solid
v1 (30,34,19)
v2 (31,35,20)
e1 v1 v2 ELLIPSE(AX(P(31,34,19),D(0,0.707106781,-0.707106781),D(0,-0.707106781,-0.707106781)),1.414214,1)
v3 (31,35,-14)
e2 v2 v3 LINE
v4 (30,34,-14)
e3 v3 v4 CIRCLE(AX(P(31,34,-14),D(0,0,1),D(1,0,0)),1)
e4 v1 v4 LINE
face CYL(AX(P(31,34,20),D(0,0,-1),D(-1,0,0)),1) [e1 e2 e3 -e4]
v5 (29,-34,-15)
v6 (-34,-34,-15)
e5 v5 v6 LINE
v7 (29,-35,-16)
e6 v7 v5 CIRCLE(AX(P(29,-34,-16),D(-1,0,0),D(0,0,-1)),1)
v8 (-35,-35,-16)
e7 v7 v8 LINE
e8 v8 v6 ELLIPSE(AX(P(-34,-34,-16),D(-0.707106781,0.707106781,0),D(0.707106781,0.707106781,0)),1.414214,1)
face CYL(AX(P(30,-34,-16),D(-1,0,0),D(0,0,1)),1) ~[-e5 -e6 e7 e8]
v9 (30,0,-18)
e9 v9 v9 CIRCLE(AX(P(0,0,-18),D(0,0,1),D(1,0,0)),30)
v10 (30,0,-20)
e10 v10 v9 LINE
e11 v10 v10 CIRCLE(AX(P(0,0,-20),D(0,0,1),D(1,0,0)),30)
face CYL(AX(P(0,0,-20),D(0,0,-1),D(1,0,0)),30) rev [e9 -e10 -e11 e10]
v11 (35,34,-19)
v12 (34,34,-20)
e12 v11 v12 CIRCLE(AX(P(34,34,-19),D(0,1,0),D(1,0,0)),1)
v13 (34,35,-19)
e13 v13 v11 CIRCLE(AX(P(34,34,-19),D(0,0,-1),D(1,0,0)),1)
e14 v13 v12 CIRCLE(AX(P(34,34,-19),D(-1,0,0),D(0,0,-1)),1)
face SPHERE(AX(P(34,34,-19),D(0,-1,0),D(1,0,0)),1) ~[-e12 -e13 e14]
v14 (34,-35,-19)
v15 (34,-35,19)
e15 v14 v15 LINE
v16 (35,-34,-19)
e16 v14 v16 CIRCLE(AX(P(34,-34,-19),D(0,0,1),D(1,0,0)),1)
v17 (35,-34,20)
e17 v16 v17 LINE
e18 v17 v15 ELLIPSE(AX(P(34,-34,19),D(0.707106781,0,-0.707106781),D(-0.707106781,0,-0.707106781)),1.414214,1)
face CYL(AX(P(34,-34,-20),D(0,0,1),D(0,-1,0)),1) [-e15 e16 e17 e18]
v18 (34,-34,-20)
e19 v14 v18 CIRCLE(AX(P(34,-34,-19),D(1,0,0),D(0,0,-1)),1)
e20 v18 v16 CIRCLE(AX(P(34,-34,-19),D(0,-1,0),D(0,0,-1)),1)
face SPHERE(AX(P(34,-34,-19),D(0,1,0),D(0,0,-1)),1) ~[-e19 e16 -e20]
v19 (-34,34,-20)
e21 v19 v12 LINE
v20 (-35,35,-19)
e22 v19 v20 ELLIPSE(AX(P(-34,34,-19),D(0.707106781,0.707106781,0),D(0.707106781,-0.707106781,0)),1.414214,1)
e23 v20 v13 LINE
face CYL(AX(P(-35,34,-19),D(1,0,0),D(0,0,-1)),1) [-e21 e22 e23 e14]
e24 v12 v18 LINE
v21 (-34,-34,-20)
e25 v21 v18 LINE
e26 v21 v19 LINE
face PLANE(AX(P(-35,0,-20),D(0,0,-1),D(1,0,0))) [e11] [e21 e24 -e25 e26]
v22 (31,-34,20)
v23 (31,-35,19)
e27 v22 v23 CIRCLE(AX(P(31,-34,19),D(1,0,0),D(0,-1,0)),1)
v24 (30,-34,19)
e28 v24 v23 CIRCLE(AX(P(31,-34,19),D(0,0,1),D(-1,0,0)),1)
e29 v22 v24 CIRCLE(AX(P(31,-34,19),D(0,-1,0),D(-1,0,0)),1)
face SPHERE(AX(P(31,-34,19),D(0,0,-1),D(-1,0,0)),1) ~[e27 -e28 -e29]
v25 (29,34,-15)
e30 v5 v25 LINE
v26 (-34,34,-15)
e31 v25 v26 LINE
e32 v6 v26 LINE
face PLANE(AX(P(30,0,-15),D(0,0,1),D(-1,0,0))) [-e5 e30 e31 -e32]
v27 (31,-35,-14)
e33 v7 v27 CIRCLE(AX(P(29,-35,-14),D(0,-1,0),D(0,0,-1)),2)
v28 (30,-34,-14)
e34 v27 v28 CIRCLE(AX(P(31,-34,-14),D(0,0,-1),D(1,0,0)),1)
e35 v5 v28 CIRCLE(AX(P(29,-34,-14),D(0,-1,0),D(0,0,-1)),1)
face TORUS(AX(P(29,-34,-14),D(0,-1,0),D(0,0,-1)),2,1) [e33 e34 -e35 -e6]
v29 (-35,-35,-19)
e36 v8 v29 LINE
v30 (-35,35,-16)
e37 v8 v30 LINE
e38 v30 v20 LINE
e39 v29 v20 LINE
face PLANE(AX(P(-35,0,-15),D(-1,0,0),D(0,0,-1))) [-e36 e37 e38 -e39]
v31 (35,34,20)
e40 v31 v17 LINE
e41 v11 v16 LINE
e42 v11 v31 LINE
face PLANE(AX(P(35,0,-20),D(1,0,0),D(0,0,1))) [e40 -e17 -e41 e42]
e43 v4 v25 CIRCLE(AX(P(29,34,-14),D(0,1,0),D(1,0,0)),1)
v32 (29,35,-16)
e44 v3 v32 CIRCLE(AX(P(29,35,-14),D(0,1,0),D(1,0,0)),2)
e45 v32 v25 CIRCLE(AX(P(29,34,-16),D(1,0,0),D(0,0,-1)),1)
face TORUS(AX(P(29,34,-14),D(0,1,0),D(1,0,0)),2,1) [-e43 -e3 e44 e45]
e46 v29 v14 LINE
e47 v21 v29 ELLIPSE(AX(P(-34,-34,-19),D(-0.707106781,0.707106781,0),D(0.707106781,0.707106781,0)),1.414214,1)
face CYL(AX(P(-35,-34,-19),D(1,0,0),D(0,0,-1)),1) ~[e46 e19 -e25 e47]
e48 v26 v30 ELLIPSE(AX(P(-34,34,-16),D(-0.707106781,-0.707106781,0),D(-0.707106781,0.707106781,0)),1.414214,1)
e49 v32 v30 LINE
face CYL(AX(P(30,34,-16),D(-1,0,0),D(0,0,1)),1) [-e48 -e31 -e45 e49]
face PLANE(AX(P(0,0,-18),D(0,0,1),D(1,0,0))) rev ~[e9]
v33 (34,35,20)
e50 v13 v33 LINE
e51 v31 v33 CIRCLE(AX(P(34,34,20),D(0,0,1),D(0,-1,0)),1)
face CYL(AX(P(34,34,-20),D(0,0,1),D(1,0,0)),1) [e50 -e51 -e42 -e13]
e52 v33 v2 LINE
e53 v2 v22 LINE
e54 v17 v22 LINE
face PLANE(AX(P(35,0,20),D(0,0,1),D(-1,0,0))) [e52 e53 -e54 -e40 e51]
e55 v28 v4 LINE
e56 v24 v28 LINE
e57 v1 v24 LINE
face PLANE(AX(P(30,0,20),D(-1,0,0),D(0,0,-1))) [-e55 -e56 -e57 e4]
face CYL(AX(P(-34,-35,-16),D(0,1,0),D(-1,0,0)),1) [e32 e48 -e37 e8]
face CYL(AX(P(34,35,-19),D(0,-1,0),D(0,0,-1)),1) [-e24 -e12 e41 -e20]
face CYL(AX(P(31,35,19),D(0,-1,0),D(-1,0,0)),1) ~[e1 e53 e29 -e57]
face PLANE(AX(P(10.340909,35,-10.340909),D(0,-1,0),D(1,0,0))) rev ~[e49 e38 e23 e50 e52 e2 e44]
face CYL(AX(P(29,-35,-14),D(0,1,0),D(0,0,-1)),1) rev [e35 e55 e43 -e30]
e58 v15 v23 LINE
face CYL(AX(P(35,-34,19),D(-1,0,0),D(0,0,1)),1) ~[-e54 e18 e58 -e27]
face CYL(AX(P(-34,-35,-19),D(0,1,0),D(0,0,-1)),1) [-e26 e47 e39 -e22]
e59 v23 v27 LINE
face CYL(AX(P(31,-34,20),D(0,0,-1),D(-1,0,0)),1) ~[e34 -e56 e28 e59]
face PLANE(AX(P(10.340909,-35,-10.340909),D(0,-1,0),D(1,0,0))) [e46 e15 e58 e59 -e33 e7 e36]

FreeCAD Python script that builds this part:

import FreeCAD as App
import Part
import Sketcher


def edges_at(feature, points):
    """Names of the edges that pass closest to the given points."""
    edges = feature.Shape.Edges
    near = lambda p: min(range(len(edges)), key=lambda i: edges[i].distToShape(Part.Vertex(*p))[0])
    return sorted({f"Edge{near(p) + 1}" for p in points})


def add_polygon(sketch, points):
    """Adds a closed chain of lines whose ends are joined by coincident constraints."""
    first, n = sketch.GeometryCount, len(points)
    for a, b in zip(points, points[1:] + points[:1]):
        sketch.addGeometry(Part.LineSegment(App.Vector(*a, 0), App.Vector(*b, 0)), False)
    for i in range(n):
        sketch.addConstraint(Sketcher.Constraint("Coincident", first + i, 2, first + (i + 1) % n, 1))

doc = App.newDocument("Part")
params = doc.addObject("Spreadsheet::Sheet", "Params")
for row, (alias, value) in enumerate([
    ("sketch1_width", "70 mm"),
    ("sketch1_width2", "5 mm"),
    ("sketch1_height", "40 mm"),
    ("pad1_length", "35 mm"),
    ("pad1_length2", "35 mm"),
    ("fillet_radius", "1 mm"),
    ("sketch2_diameter", "60 mm"),
    ("pocket1_length", "2 mm"),
], start=1):
    params.set(f"A{row}", alias)
    params.set(f"B{row}", "=" + value)
    params.setAlias(f"B{row}", alias)

body = doc.addObject("PartDesign::Body", "Body")

sketch1 = body.newObject("Sketcher::SketchObject", "Sketch")
sketch1.AttachmentSupport = (doc.getObject("XZ_Plane"), [""])
sketch1.MapMode = "FlatFace"
add_polygon(sketch1, [(-35, -20), (35, -20), (35, 20), (30, 20), (30, -15), (-35, -15)])
sketch1.addConstraint([
    Sketcher.Constraint("Horizontal", 0),
    Sketcher.Constraint("Vertical", 1),
    Sketcher.Constraint("Horizontal", 2),
    Sketcher.Constraint("Vertical", 3),
    Sketcher.Constraint("Horizontal", 4),
    Sketcher.Constraint("Vertical", 5),
    Sketcher.Constraint("Symmetric", 1, 2, 5, 2, -1, 1),
    Sketcher.Constraint("Equal", 2, 5),
    Sketcher.Constraint("DistanceX", 0, 1, 0, 2, 70.0),
    Sketcher.Constraint("DistanceX", 2, 2, 2, 1, 5.0),
    Sketcher.Constraint("DistanceY", 1, 1, 1, 2, 40.0),
])
sketch1.setExpression("Constraints[14]", "Params.sketch1_width")
sketch1.setExpression("Constraints[15]", "Params.sketch1_width2")
sketch1.setExpression("Constraints[16]", "Params.sketch1_height")
pad1 = body.newObject("PartDesign::Pad", "Pad")
pad1.Profile = sketch1
pad1.Type = "TwoLengths"
pad1.setExpression("Length", "Params.pad1_length")
pad1.setExpression("Length2", "Params.pad1_length2")
doc.recompute()

fillet = body.newObject("PartDesign::Fillet", "Fillet")
fillet.Base = (pad1, edges_at(pad1, [
    (35, 0, -20),
    (-2.5, 35, -15),
    (35, 35, 0),
    (0, 35, -20),
    (-35, 0, -20),
    (-35, 0, -15),
    (-2.5, -35, -15),
    (0, -35, -20),
    (30, -35, 2.5),
    (30, 0, -15),
    (30, 35, 2.5),
    (30, 0, 20),
    (32.5, -35, 20),
    (35, -35, 0),
]))
fillet.setExpression("Radius", "Params.fillet_radius")

sketch2 = body.newObject("Sketcher::SketchObject", "Sketch001")
sketch2.AttachmentSupport = (doc.getObject("XY_Plane"), [""])
sketch2.MapMode = "FlatFace"
sketch2.AttachmentOffset = App.Placement(App.Vector(0, 0, -20), App.Rotation())
sketch2.addGeometry(Part.Circle(App.Vector(0, 0, 0), App.Vector(0, 0, 1), 30), False)
sketch2.addConstraint([
    Sketcher.Constraint("Coincident", 0, 3, -1, 1),
    Sketcher.Constraint("Diameter", 0, 60.0),
])
sketch2.setExpression("Constraints[1]", "Params.sketch2_diameter")
pocket1 = body.newObject("PartDesign::Pocket", "Pocket")
pocket1.Profile = sketch2
pocket1.setExpression("Length", "Params.pocket1_length")
pocket1.Reversed = True

doc.recompute()
